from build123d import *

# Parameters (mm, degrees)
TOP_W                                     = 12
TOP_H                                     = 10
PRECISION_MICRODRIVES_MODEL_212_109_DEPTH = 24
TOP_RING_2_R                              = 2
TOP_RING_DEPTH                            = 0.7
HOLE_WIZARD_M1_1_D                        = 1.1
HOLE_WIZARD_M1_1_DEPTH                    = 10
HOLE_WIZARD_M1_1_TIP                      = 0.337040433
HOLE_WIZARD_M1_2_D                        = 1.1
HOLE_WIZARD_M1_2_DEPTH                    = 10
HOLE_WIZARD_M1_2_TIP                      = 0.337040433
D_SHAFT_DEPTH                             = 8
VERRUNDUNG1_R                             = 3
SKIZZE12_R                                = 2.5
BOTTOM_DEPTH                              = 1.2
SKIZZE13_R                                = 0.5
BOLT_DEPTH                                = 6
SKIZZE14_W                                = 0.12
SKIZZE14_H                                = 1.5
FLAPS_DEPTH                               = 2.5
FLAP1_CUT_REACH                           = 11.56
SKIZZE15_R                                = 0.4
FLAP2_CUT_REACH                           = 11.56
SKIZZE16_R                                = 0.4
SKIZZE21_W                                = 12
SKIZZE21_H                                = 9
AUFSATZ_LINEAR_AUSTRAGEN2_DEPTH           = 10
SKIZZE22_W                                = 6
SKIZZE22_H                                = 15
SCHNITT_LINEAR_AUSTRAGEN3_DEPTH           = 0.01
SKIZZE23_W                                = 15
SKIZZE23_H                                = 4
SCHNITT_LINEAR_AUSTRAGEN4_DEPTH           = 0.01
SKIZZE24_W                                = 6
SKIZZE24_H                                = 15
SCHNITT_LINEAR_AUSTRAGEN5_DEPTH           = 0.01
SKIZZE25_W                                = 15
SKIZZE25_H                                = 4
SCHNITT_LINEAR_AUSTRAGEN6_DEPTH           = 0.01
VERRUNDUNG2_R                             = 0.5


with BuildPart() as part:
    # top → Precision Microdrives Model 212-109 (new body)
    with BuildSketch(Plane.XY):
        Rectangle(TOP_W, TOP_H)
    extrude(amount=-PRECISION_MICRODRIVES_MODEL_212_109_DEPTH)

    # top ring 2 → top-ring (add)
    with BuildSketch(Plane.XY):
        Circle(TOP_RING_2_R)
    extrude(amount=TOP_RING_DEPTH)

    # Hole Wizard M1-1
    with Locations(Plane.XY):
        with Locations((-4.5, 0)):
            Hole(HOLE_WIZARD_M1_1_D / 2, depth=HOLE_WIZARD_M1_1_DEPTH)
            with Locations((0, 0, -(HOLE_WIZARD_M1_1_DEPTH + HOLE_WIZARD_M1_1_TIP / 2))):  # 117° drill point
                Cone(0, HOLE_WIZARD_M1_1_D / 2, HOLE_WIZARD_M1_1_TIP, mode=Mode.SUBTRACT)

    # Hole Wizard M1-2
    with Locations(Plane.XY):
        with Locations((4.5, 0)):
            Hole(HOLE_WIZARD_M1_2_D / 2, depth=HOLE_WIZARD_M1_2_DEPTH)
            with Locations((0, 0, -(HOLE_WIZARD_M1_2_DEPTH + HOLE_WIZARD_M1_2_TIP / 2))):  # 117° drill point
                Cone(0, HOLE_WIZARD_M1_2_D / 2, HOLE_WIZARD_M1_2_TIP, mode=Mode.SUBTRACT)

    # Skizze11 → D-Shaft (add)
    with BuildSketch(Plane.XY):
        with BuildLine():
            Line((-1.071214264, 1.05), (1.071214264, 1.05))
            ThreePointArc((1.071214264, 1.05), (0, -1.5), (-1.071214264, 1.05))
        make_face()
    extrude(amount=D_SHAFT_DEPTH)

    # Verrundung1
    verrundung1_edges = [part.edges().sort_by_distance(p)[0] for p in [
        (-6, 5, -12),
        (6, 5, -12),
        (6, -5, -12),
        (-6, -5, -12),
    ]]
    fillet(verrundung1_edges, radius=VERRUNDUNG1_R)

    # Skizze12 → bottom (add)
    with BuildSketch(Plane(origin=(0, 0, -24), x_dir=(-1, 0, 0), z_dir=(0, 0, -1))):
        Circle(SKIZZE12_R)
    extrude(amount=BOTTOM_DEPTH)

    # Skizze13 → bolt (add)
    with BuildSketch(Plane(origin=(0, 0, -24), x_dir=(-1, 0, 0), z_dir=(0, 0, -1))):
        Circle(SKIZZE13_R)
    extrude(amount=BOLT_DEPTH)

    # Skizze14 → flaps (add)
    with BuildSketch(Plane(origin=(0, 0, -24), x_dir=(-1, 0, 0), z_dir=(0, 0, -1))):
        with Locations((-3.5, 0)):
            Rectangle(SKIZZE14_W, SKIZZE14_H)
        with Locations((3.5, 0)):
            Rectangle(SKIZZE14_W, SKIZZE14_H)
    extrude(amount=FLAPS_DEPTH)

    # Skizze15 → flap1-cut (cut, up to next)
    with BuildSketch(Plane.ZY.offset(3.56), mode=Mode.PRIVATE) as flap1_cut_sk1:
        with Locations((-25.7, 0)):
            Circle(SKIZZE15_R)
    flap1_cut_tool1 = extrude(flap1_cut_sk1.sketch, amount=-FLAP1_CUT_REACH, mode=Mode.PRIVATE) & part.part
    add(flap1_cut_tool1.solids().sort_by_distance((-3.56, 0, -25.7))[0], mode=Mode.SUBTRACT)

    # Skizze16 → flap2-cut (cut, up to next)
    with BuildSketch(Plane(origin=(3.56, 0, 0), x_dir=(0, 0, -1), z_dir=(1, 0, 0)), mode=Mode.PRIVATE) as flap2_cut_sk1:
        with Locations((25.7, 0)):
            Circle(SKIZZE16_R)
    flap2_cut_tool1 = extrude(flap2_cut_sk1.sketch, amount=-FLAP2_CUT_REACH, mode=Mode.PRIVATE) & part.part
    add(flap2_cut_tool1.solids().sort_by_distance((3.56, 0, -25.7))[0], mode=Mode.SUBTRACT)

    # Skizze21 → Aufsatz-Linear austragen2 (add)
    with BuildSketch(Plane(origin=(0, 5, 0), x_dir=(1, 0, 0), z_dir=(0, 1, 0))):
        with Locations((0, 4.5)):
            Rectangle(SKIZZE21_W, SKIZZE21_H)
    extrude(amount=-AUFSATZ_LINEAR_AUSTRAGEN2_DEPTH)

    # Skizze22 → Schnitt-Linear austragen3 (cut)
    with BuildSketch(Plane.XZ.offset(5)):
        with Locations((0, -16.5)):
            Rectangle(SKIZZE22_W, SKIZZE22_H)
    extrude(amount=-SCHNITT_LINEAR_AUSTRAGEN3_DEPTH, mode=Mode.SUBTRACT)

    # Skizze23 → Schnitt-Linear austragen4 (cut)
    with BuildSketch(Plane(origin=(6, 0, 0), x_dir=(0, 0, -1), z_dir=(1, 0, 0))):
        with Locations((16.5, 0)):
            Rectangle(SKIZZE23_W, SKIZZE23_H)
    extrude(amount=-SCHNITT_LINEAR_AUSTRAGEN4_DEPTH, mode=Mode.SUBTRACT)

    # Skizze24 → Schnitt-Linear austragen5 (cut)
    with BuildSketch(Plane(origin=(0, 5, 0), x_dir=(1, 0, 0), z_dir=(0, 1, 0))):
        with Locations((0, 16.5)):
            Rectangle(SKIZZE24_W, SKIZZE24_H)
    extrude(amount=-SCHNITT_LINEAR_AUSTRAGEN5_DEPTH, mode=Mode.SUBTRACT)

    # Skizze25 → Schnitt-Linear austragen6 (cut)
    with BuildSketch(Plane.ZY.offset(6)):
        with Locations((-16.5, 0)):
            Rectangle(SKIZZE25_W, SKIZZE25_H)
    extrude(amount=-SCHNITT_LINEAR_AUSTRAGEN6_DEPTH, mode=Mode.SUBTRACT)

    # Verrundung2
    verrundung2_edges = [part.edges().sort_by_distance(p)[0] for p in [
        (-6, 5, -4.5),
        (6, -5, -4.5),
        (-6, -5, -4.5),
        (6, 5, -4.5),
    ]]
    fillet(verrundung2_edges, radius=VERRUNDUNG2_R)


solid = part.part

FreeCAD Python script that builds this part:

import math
import FreeCAD as App
import Part
import Sketcher

V = App.Vector


def edges_at(feature, points):
    """Names of the edges that pass closest to the given points."""
    edges = feature.Shape.Edges
    near = lambda p: min(range(len(edges)), key=lambda i: edges[i].distToShape(Part.Vertex(*p))[0])
    return sorted({f"Edge{near(p) + 1}" for p in points})

doc = App.newDocument("Part")
body = doc.addObject("PartDesign::Body", "Body")

sketch1 = body.newObject("Sketcher::SketchObject", "Sketch")
sketch1.AttachmentSupport = (doc.getObject("XY_Plane"), [""])
sketch1.MapMode = "FlatFace"
sketch1.addGeometry([
    Part.LineSegment(V(-6, 5, 0), V(-6, -5, 0)),
    Part.LineSegment(V(-6, -5, 0), V(6, -5, 0)),
    Part.LineSegment(V(6, -5, 0), V(6, 5, 0)),
    Part.LineSegment(V(6, 5, 0), V(-6, 5, 0)),
], False)
sketch1.addConstraint([
    Sketcher.Constraint("Coincident", 0, 2, 1, 1),
    Sketcher.Constraint("Coincident", 1, 2, 2, 1),
    Sketcher.Constraint("Coincident", 2, 2, 3, 1),
    Sketcher.Constraint("Coincident", 3, 2, 0, 1),
    Sketcher.Constraint("Vertical", 0),
    Sketcher.Constraint("Horizontal", 1),
    Sketcher.Constraint("Vertical", 2),
    Sketcher.Constraint("Horizontal", 3),
    Sketcher.Constraint("Symmetric", 0, 2, 2, 2, -1, 1),
    Sketcher.Constraint("DistanceX", 1, 1, 1, 2, 12.0),
    Sketcher.Constraint("DistanceY", 0, 2, 0, 1, 10.0),
])
pad1 = body.newObject("PartDesign::Pad", "Pad")
pad1.Profile = sketch1
pad1.Length = 24
pad1.Reversed = True

sketch2 = body.newObject("Sketcher::SketchObject", "Sketch001")
sketch2.AttachmentSupport = (doc.getObject("XY_Plane"), [""])
sketch2.MapMode = "FlatFace"
sketch2.addGeometry(Part.Circle(V(0, 0, 0), V(0, 0, 1), 2), False)
sketch2.addConstraint([
    Sketcher.Constraint("Coincident", 0, 3, -1, 1),
    Sketcher.Constraint("Diameter", 0, 4.0),
])
pad2 = body.newObject("PartDesign::Pad", "Pad001")
pad2.Profile = sketch2
pad2.Length = 0.7

sketch3 = body.newObject("Sketcher::SketchObject", "Sketch002")
sketch3.AttachmentSupport = (doc.getObject("XY_Plane"), [""])
sketch3.MapMode = "FlatFace"
sketch3.addGeometry(Part.Circle(V(-4.5, 0, 0), V(0, 0, 1), 0.6), False)
sketch3.addConstraint([
    Sketcher.Constraint("PointOnObject", 0, 3, -1),
    Sketcher.Constraint("Diameter", 0, 1.1),
    Sketcher.Constraint("DistanceX", 0, 3, -1, 1, 4.5),
])
doc.recompute()
hole = body.newObject("PartDesign::Hole", "Hole")
hole.Profile = sketch3
hole.ThreadType = "None"
hole.Diameter = 1.1
hole.DepthType = "Dimension"
hole.Depth = 10
hole.DrillPoint = "Angled"
hole.DrillPointAngle = 117

sketch4 = body.newObject("Sketcher::SketchObject", "Sketch003")
sketch4.AttachmentSupport = (doc.getObject("XY_Plane"), [""])
sketch4.MapMode = "FlatFace"
sketch4.addGeometry(Part.Circle(V(4.5, 0, 0), V(0, 0, 1), 0.6), False)
sketch4.addConstraint([
    Sketcher.Constraint("PointOnObject", 0, 3, -1),
    Sketcher.Constraint("Diameter", 0, 1.1),
    Sketcher.Constraint("DistanceX", -1, 1, 0, 3, 4.5),
])
doc.recompute()
hole2 = body.newObject("PartDesign::Hole", "Hole001")
hole2.Profile = sketch4
hole2.ThreadType = "None"
hole2.Diameter = 1.1
hole2.DepthType = "Dimension"
hole2.Depth = 10
hole2.DrillPoint = "Angled"
hole2.DrillPointAngle = 117

sketch5 = body.newObject("Sketcher::SketchObject", "Sketch004")
sketch5.AttachmentSupport = (doc.getObject("XY_Plane"), [""])
sketch5.MapMode = "FlatFace"
sketch5.addGeometry([
    Part.LineSegment(V(1.1, 1.1, 0), V(-1.1, 1.1, 0)),
    Part.ArcOfCircle(Part.Circle(V(0, 0, 0), V(0, 0, 1), 1.5), math.radians(136), math.radians(404)),
], False)
sketch5.addConstraint([
    Sketcher.Constraint("Coincident", 0, 1, 1, 2),
    Sketcher.Constraint("Coincident", 1, 1, 0, 2),
    Sketcher.Constraint("Horizontal", 0),
    Sketcher.Constraint("Coincident", 1, 3, -1, 1),
    Sketcher.Constraint("Radius", 1, 1.5),
    Sketcher.Constraint("DistanceY", -1, 1, 0, 1, 1.05),
])
pad3 = body.newObject("PartDesign::Pad", "Pad002")
pad3.Profile = sketch5
pad3.Length = 8
doc.recompute()

fillet = body.newObject("PartDesign::Fillet", "Fillet")
fillet.Base = (pad3, edges_at(pad3, [
    (-6, 5, -12),
    (6, 5, -12),
    (6, -5, -12),
    (-6, -5, -12),
]))
fillet.Radius = 3

sketch6 = body.newObject("Sketcher::SketchObject", "Sketch005")
sketch6.AttachmentSupport = (doc.getObject("XY_Plane"), [""])
sketch6.MapMode = "FlatFace"
sketch6.AttachmentOffset = App.Placement(V(0, 0, -24), App.Rotation())
sketch6.addGeometry(Part.Circle(V(0, 0, 0), V(0, 0, 1), 2.5), False)
sketch6.addConstraint([
    Sketcher.Constraint("Coincident", 0, 3, -1, 1),
    Sketcher.Constraint("Diameter", 0, 5.0),
])
pad4 = body.newObject("PartDesign::Pad", "Pad003")
pad4.Profile = sketch6
pad4.Length = 1.2
pad4.Reversed = True

sketch7 = body.newObject("Sketcher::SketchObject", "Sketch006")
sketch7.AttachmentSupport = (doc.getObject("XY_Plane"), [""])
sketch7.MapMode = "FlatFace"
sketch7.AttachmentOffset = App.Placement(V(0, 0, -24), App.Rotation())
sketch7.addGeometry(Part.Circle(V(0, 0, 0), V(0, 0, 1), 0.5), False)
sketch7.addConstraint([
    Sketcher.Constraint("Coincident", 0, 3, -1, 1),
    Sketcher.Constraint("Diameter", 0, 1.0),
])
pad5 = body.newObject("PartDesign::Pad", "Pad004")
pad5.Profile = sketch7
pad5.Length = 6
pad5.Reversed = True

sketch8 = body.newObject("Sketcher::SketchObject", "Sketch007")
sketch8.AttachmentSupport = (doc.getObject("XY_Plane"), [""])
sketch8.MapMode = "FlatFace"
sketch8.AttachmentOffset = App.Placement(V(0, 0, -24), App.Rotation())
sketch8.addGeometry([
    Part.LineSegment(V(3.56, 0.75, 0), V(3.56, -0.75, 0)),
    Part.LineSegment(V(3.56, -0.75, 0), V(3.44, -0.75, 0)),
    Part.LineSegment(V(3.44, -0.75, 0), V(3.44, 0.75, 0)),
    Part.LineSegment(V(3.44, 0.75, 0), V(3.56, 0.75, 0)),
    Part.LineSegment(V(-3.44, 0.75, 0), V(-3.44, -0.75, 0)),
    Part.LineSegment(V(-3.44, -0.75, 0), V(-3.56, -0.75, 0)),
    Part.LineSegment(V(-3.56, -0.75, 0), V(-3.56, 0.75, 0)),
    Part.LineSegment(V(-3.56, 0.75, 0), V(-3.44, 0.75, 0)),
], False)
sketch8.addConstraint([
    Sketcher.Constraint("Coincident", 0, 2, 1, 1),
    Sketcher.Constraint("Coincident", 1, 2, 2, 1),
    Sketcher.Constraint("Coincident", 2, 2, 3, 1),
    Sketcher.Constraint("Coincident", 3, 2, 0, 1),
    Sketcher.Constraint("Coincident", 4, 2, 5, 1),
    Sketcher.Constraint("Coincident", 5, 2, 6, 1),
    Sketcher.Constraint("Coincident", 6, 2, 7, 1),
    Sketcher.Constraint("Coincident", 7, 2, 4, 1),
    Sketcher.Constraint("Vertical", 0),
    Sketcher.Constraint("Horizontal", 1),
    Sketcher.Constraint("Vertical", 2),
    Sketcher.Constraint("Horizontal", 3),
    Sketcher.Constraint("Vertical", 4),
    Sketcher.Constraint("Horizontal", 5),
    Sketcher.Constraint("Vertical", 6),
    Sketcher.Constraint("Horizontal", 7),
    Sketcher.Constraint("Symmetric", 2, 2, 4, 2, -1, 1),
    Sketcher.Constraint("Symmetric", 0, 2, 6, 2, -1, 1),
    Sketcher.Constraint("Horizontal", 1, 2, 4, 2),
    Sketcher.Constraint("DistanceY", 0, 2, 0, 1, 1.5),
    Sketcher.Constraint("DistanceX", 4, 2, 0, 2, 7.0),
    Sketcher.Constraint("DistanceX", 1, 2, 1, 1, 0.12),
])
pad6 = body.newObject("PartDesign::Pad", "Pad005")
pad6.Profile = sketch8
pad6.Length = 2.5
pad6.Reversed = True

sketch9 = body.newObject("Sketcher::SketchObject", "Sketch008")
sketch9.AttachmentSupport = (doc.getObject("YZ_Plane"), [""])
sketch9.MapMode = "FlatFace"
sketch9.AttachmentOffset = App.Placement(V(0, 0, -3.56), App.Rotation())
sketch9.addGeometry(Part.Circle(V(0, -25.7, 0), V(0, 0, 1), 0.4), False)
sketch9.addConstraint([
    Sketcher.Constraint("PointOnObject", 0, 3, -2),
    Sketcher.Constraint("Diameter", 0, 0.8),
    Sketcher.Constraint("DistanceY", 0, 3, -1, 1, 25.7),
])
pocket1 = body.newObject("PartDesign::Pocket", "Pocket")
pocket1.Profile = sketch9
pocket1.Type = "UpToFirst"
pocket1.Reversed = True

sketch10 = body.newObject("Sketcher::SketchObject", "Sketch009")
sketch10.AttachmentSupport = (doc.getObject("YZ_Plane"), [""])
sketch10.MapMode = "FlatFace"
sketch10.AttachmentOffset = App.Placement(V(0, 0, 3.56), App.Rotation())
sketch10.addGeometry(Part.Circle(V(0, -25.7, 0), V(0, 0, 1), 0.4), False)
sketch10.addConstraint([
    Sketcher.Constraint("PointOnObject", 0, 3, -2),
    Sketcher.Constraint("Diameter", 0, 0.8),
    Sketcher.Constraint("DistanceY", 0, 3, -1, 1, 25.7),
])
pocket2 = body.newObject("PartDesign::Pocket", "Pocket001")
pocket2.Profile = sketch10
pocket2.Type = "UpToFirst"

sketch11 = body.newObject("Sketcher::SketchObject", "Sketch010")
sketch11.AttachmentSupport = (doc.getObject("XZ_Plane"), [""])
sketch11.MapMode = "FlatFace"
sketch11.AttachmentOffset = App.Placement(V(0, 0, -5), App.Rotation())
sketch11.addGeometry([
    Part.LineSegment(V(-6, -9, 0), V(-6, 0, 0)),
    Part.LineSegment(V(-6, 0, 0), V(6, 0, 0)),
    Part.LineSegment(V(6, 0, 0), V(6, -9, 0)),
    Part.LineSegment(V(6, -9, 0), V(-6, -9, 0)),
], False)
sketch11.addConstraint([
    Sketcher.Constraint("Coincident", 0, 2, 1, 1),
    Sketcher.Constraint("Coincident", 1, 2, 2, 1),
    Sketcher.Constraint("Coincident", 2, 2, 3, 1),
    Sketcher.Constraint("Coincident", 3, 2, 0, 1),
    Sketcher.Constraint("Vertical", 0),
    Sketcher.Constraint("Horizontal", 1),
    Sketcher.Constraint("Vertical", 2),
    Sketcher.Constraint("Horizontal", 3),
    Sketcher.Constraint("Symmetric", 0, 2, 1, 2, -1, 1),
    Sketcher.Constraint("DistanceX", 1, 1, 1, 2, 12.0),
    Sketcher.Constraint("DistanceY", 0, 1, 0, 2, 9.0),
])
pad7 = body.newObject("PartDesign::Pad", "Pad006")
pad7.Profile = sketch11
pad7.Length = 10

sketch12 = body.newObject("Sketcher::SketchObject", "Sketch011")
sketch12.AttachmentSupport = (doc.getObject("XZ_Plane"), [""])
sketch12.MapMode = "FlatFace"
sketch12.AttachmentOffset = App.Placement(V(0, 0, 5), App.Rotation())
sketch12.addGeometry([
    Part.LineSegment(V(-3, -9, 0), V(-3, -24, 0)),
    Part.LineSegment(V(-3, -24, 0), V(3, -24, 0)),
    Part.LineSegment(V(3, -24, 0), V(3, -9, 0)),
    Part.LineSegment(V(3, -9, 0), V(-3, -9, 0)),
], False)
sketch12.addConstraint([
    Sketcher.Constraint("Coincident", 0, 2, 1, 1),
    Sketcher.Constraint("Coincident", 1, 2, 2, 1),
    Sketcher.Constraint("Coincident", 2, 2, 3, 1),
    Sketcher.Constraint("Coincident", 3, 2, 0, 1),
    Sketcher.Constraint("Vertical", 0),
    Sketcher.Constraint("Horizontal", 1),
    Sketcher.Constraint("Vertical", 2),
    Sketcher.Constraint("Horizontal", 3),
    Sketcher.Constraint("DistanceX", 1, 1, 1, 2, 6.0),
    Sketcher.Constraint("DistanceY", 0, 2, 0, 1, 15.0),
    Sketcher.Constraint("DistanceX", 0, 2, -1, 1, 3.0),
    Sketcher.Constraint("DistanceY", 0, 2, -1, 1, 24.0),
])
pocket3 = body.newObject("PartDesign::Pocket", "Pocket002")
pocket3.Profile = sketch12
pocket3.Length = 0.01

sketch13 = body.newObject("Sketcher::SketchObject", "Sketch012")
sketch13.AttachmentSupport = (doc.getObject("YZ_Plane"), [""])
sketch13.MapMode = "FlatFace"
sketch13.AttachmentOffset = App.Placement(V(0, 0, 6), App.Rotation())
sketch13.addGeometry([
    Part.LineSegment(V(2, -9, 0), V(-2, -9, 0)),
    Part.LineSegment(V(-2, -9, 0), V(-2, -24, 0)),
    Part.LineSegment(V(-2, -24, 0), V(2, -24, 0)),
    Part.LineSegment(V(2, -24, 0), V(2, -9, 0)),
], False)
sketch13.addConstraint([
    Sketcher.Constraint("Coincident", 0, 2, 1, 1),
    Sketcher.Constraint("Coincident", 1, 2, 2, 1),
    Sketcher.Constraint("Coincident", 2, 2, 3, 1),
    Sketcher.Constraint("Coincident", 3, 2, 0, 1),
    Sketcher.Constraint("Horizontal", 0),
    Sketcher.Constraint("Vertical", 1),
    Sketcher.Constraint("Horizontal", 2),
    Sketcher.Constraint("Vertical", 3),
    Sketcher.Constraint("DistanceX", 0, 2, 0, 1, 4.0),
    Sketcher.Constraint("DistanceY", 1, 2, 1, 1, 15.0),
    Sketcher.Constraint("DistanceX", 0, 2, -1, 1, 2.0),
    Sketcher.Constraint("DistanceY", 0, 2, -1, 1, 9.0),
])
pocket4 = body.newObject("PartDesign::Pocket", "Pocket003")
pocket4.Profile = sketch13
pocket4.Length = 0.01

sketch14 = body.newObject("Sketcher::SketchObject", "Sketch013")
sketch14.AttachmentSupport = (doc.getObject("XZ_Plane"), [""])
sketch14.MapMode = "FlatFace"
sketch14.AttachmentOffset = App.Placement(V(0, 0, -5), App.Rotation())
sketch14.addGeometry([
    Part.LineSegment(V(-3, -24, 0), V(-3, -9, 0)),
    Part.LineSegment(V(-3, -9, 0), V(3, -9, 0)),
    Part.LineSegment(V(3, -9, 0), V(3, -24, 0)),
    Part.LineSegment(V(3, -24, 0), V(-3, -24, 0)),
], False)
sketch14.addConstraint([
    Sketcher.Constraint("Coincident", 0, 2, 1, 1),
    Sketcher.Constraint("Coincident", 1, 2, 2, 1),
    Sketcher.Constraint("Coincident", 2, 2, 3, 1),
    Sketcher.Constraint("Coincident", 3, 2, 0, 1),
    Sketcher.Constraint("Vertical", 0),
    Sketcher.Constraint("Horizontal", 1),
    Sketcher.Constraint("Vertical", 2),
    Sketcher.Constraint("Horizontal", 3),
    Sketcher.Constraint("DistanceX", 1, 1, 1, 2, 6.0),
    Sketcher.Constraint("DistanceY", 0, 1, 0, 2, 15.0),
    Sketcher.Constraint("DistanceX", 0, 2, -1, 1, 3.0),
    Sketcher.Constraint("DistanceY", 0, 2, -1, 1, 9.0),
])
pocket5 = body.newObject("PartDesign::Pocket", "Pocket004")
pocket5.Profile = sketch14
pocket5.Length = 0.01
pocket5.Reversed = True

sketch15 = body.newObject("Sketcher::SketchObject", "Sketch014")
sketch15.AttachmentSupport = (doc.getObject("YZ_Plane"), [""])
sketch15.MapMode = "FlatFace"
sketch15.AttachmentOffset = App.Placement(V(0, 0, -6), App.Rotation())
sketch15.addGeometry([
    Part.LineSegment(V(2, -24, 0), V(-2, -24, 0)),
    Part.LineSegment(V(-2, -24, 0), V(-2, -9, 0)),
    Part.LineSegment(V(-2, -9, 0), V(2, -9, 0)),
    Part.LineSegment(V(2, -9, 0), V(2, -24, 0)),
], False)
sketch15.addConstraint([
    Sketcher.Constraint("Coincident", 0, 2, 1, 1),
    Sketcher.Constraint("Coincident", 1, 2, 2, 1),
    Sketcher.Constraint("Coincident", 2, 2, 3, 1),
    Sketcher.Constraint("Coincident", 3, 2, 0, 1),
    Sketcher.Constraint("Horizontal", 0),
    Sketcher.Constraint("Vertical", 1),
    Sketcher.Constraint("Horizontal", 2),
    Sketcher.Constraint("Vertical", 3),
    Sketcher.Constraint("DistanceX", 0, 2, 0, 1, 4.0),
    Sketcher.Constraint("DistanceY", 1, 1, 1, 2, 15.0),
    Sketcher.Constraint("DistanceX", 0, 2, -1, 1, 2.0),
    Sketcher.Constraint("DistanceY", 0, 2, -1, 1, 24.0),
])
pocket6 = body.newObject("PartDesign::Pocket", "Pocket005")
pocket6.Profile = sketch15
pocket6.Length = 0.01
pocket6.Reversed = True
doc.recompute()

fillet2 = body.newObject("PartDesign::Fillet", "Fillet001")
fillet2.Base = (pocket6, edges_at(pocket6, [
    (-6, 5, -4.5),
    (6, -5, -4.5),
    (-6, -5, -4.5),
    (6, 5, -4.5),
]))
fillet2.Radius = 0.5

doc.recompute()
